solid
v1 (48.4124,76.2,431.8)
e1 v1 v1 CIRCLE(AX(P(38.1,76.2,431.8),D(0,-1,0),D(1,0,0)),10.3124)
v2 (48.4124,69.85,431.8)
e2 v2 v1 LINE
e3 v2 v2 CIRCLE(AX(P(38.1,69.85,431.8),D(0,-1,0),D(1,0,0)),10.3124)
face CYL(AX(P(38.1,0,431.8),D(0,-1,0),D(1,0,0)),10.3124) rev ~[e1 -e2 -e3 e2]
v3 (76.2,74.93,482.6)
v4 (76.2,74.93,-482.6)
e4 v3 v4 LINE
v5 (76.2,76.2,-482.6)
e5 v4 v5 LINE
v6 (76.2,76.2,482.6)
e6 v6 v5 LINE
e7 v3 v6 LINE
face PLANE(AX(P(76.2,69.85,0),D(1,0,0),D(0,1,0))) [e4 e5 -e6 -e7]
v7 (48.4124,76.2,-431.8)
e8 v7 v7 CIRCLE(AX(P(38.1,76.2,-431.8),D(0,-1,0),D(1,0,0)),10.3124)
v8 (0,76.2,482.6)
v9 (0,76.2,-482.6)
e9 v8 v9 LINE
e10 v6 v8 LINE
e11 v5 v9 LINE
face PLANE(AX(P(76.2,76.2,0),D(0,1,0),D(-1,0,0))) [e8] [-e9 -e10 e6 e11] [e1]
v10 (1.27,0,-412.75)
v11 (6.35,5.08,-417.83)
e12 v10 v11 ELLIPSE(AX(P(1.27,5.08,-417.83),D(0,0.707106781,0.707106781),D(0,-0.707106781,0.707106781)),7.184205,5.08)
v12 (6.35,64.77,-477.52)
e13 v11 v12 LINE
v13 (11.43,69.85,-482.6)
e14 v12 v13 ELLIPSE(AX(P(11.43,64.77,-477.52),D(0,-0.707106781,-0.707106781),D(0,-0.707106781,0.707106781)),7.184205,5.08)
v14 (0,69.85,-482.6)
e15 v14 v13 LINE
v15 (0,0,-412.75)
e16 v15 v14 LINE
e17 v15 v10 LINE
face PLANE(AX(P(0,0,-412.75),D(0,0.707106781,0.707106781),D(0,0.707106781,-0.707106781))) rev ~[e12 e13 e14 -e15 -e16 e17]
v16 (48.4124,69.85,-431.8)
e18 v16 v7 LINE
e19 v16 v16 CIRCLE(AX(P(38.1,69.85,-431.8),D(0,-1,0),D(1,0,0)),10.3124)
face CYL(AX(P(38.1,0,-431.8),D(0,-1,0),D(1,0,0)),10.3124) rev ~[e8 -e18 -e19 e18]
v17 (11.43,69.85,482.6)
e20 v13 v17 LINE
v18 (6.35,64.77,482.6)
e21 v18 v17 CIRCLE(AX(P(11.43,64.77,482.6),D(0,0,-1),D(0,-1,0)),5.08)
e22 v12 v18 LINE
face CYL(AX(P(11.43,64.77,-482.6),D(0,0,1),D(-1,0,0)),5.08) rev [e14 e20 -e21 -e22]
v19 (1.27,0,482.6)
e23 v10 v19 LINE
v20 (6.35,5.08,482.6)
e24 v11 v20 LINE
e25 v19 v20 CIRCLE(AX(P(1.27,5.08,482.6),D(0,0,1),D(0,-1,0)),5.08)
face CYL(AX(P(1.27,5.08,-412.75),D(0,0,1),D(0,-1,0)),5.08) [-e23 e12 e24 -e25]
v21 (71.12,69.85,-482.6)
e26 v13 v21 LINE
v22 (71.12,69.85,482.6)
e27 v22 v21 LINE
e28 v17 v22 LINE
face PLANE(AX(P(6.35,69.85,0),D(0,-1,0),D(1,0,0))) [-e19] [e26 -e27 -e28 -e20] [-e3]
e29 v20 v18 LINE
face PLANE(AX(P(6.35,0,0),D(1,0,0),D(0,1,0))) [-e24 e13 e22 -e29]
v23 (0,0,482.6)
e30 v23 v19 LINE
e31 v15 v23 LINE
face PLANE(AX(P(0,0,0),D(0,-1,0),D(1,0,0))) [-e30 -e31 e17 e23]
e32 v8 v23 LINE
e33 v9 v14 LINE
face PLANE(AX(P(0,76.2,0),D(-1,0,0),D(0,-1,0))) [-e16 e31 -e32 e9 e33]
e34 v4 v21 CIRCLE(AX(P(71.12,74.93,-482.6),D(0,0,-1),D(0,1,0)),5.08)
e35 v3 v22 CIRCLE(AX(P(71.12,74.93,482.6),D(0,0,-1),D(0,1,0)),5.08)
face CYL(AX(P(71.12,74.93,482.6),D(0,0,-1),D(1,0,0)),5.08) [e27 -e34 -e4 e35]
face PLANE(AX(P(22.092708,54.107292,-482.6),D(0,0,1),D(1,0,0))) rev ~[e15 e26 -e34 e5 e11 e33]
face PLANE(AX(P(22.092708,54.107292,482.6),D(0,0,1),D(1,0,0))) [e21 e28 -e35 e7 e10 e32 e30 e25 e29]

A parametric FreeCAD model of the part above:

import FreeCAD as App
import Part
import Sketcher

V = App.Vector
Q = App.Units.Quantity


def edges_at(feature, points):
    """Names of the edges that pass closest to the given points."""
    edges = feature.Shape.Edges
    near = lambda p: min(range(len(edges)), key=lambda i: edges[i].distToShape(Part.Vertex(*p))[0])
    return sorted({f"Edge{near(p) + 1}" for p in points})

doc = App.newDocument("Part")
body = doc.addObject("PartDesign::Body", "Body")

sketch1 = doc.addObject("Sketcher::SketchObject", "Sketch")
body.addObject(sketch1)
sketch1.AttachmentSupport = (doc.XY_Plane, [""])
sketch1.MapMode = "FlatFace"
sketch1.addGeometry([
    Part.LineSegment(V(0, 76, 0), V(0, 0, 0)),
    Part.LineSegment(V(0, 0, 0), V(6, 0, 0)),
    Part.LineSegment(V(6, 0, 0), V(6, 70, 0)),
    Part.LineSegment(V(6, 70, 0), V(76, 70, 0)),
    Part.LineSegment(V(76, 70, 0), V(76, 76, 0)),
    Part.LineSegment(V(76, 76, 0), V(0, 76, 0)),
], False)
sketch1.addConstraint([
    Sketcher.Constraint("Coincident", 0, 2, 1, 1),
    Sketcher.Constraint("Coincident", 1, 2, 2, 1),
    Sketcher.Constraint("Coincident", 2, 2, 3, 1),
    Sketcher.Constraint("Coincident", 3, 2, 4, 1),
    Sketcher.Constraint("Coincident", 4, 2, 5, 1),
    Sketcher.Constraint("Coincident", 5, 2, 0, 1),
    Sketcher.Constraint("Vertical", 0),
    Sketcher.Constraint("Horizontal", 1),
    Sketcher.Constraint("Vertical", 2),
    Sketcher.Constraint("Horizontal", 3),
    Sketcher.Constraint("Vertical", 4),
    Sketcher.Constraint("Horizontal", 5),
    Sketcher.Constraint("Coincident", 0, 2, -1, 1),
    Sketcher.Constraint("Equal", 5, 0),
    Sketcher.Constraint("Equal", 3, 2),
    Sketcher.Constraint("DistanceX", 5, 2, 5, 1, Q("3 in")),
    Sketcher.Constraint("DistanceX", 1, 1, 1, 2, Q("0.25 in")),
])
pad1 = doc.addObject("PartDesign::Pad", "Pad")
body.addObject(pad1)
pad1.Profile = sketch1
pad1.Length = Q("38 in")
pad1.Midplane = True

sketch2 = doc.addObject("Sketcher::SketchObject", "Sketch001")
body.addObject(sketch2)
sketch2.AttachmentSupport = (doc.YZ_Plane, [""])
sketch2.MapMode = "FlatFace"
sketch2.addGeometry([
    Part.LineSegment(V(0, -413, 0), V(70, -483, 0)),
    Part.LineSegment(V(70, -483, 0), V(0, -483, 0)),
    Part.LineSegment(V(0, -483, 0), V(0, -413, 0)),
], False)
sketch2.addConstraint([
    Sketcher.Constraint("Coincident", 0, 2, 1, 1),
    Sketcher.Constraint("Coincident", 1, 2, 2, 1),
    Sketcher.Constraint("Coincident", 2, 2, 0, 1),
    Sketcher.Constraint("Horizontal", 1),
    Sketcher.Constraint("Vertical", 2),
    Sketcher.Constraint("PointOnObject", 1, 2, -2),
    Sketcher.Constraint("Equal", 1, 2),
    Sketcher.Constraint("DistanceY", 0, 2, -1, 1, Q("19 in")),
    Sketcher.Constraint("DistanceX", 1, 2, 1, 1, Q("2.75 in")),
])
pocket1 = doc.addObject("PartDesign::Pocket", "Pocket")
body.addObject(pocket1)
pocket1.Profile = sketch2
pocket1.Length = Q("0.25 in")
pocket1.Reversed = True

sketch3 = doc.addObject("Sketcher::SketchObject", "Sketch002")
body.addObject(sketch3)
sketch3.AttachmentSupport = (doc.XZ_Plane, [""])
sketch3.MapMode = "FlatFace"
sketch3.addGeometry([
    Part.Circle(V(38, 432, 0), V(0, 0, 1), 10),
    Part.Circle(V(38, -432, 0), V(0, 0, 1), 10),
], False)
sketch3.addConstraint([
    Sketcher.Constraint("Equal", 0, 1),
    Sketcher.Constraint("Symmetric", 0, 3, 1, 3, -1),
    Sketcher.Constraint("Diameter", 0, Q("0.812 in")),
    Sketcher.Constraint("DistanceY", -1, 1, 0, 3, Q("17 in")),
    Sketcher.Constraint("DistanceX", -1, 1, 0, 3, Q("1.5 in")),
])
pocket2 = doc.addObject("PartDesign::Pocket", "Pocket001")
body.addObject(pocket2)
pocket2.Profile = sketch3
pocket2.Length = Q("3 in")
doc.recompute()

fillet = doc.addObject("PartDesign::Fillet", "Fillet")
body.addObject(fillet)
fillet.Base = (pocket2, edges_at(pocket2, [(6.35, 69.85, 0), (76.2, 69.85, 0), (6.35, 0, 34.925)]))
fillet.Radius = Q("0.2 in")

doc.recompute()
